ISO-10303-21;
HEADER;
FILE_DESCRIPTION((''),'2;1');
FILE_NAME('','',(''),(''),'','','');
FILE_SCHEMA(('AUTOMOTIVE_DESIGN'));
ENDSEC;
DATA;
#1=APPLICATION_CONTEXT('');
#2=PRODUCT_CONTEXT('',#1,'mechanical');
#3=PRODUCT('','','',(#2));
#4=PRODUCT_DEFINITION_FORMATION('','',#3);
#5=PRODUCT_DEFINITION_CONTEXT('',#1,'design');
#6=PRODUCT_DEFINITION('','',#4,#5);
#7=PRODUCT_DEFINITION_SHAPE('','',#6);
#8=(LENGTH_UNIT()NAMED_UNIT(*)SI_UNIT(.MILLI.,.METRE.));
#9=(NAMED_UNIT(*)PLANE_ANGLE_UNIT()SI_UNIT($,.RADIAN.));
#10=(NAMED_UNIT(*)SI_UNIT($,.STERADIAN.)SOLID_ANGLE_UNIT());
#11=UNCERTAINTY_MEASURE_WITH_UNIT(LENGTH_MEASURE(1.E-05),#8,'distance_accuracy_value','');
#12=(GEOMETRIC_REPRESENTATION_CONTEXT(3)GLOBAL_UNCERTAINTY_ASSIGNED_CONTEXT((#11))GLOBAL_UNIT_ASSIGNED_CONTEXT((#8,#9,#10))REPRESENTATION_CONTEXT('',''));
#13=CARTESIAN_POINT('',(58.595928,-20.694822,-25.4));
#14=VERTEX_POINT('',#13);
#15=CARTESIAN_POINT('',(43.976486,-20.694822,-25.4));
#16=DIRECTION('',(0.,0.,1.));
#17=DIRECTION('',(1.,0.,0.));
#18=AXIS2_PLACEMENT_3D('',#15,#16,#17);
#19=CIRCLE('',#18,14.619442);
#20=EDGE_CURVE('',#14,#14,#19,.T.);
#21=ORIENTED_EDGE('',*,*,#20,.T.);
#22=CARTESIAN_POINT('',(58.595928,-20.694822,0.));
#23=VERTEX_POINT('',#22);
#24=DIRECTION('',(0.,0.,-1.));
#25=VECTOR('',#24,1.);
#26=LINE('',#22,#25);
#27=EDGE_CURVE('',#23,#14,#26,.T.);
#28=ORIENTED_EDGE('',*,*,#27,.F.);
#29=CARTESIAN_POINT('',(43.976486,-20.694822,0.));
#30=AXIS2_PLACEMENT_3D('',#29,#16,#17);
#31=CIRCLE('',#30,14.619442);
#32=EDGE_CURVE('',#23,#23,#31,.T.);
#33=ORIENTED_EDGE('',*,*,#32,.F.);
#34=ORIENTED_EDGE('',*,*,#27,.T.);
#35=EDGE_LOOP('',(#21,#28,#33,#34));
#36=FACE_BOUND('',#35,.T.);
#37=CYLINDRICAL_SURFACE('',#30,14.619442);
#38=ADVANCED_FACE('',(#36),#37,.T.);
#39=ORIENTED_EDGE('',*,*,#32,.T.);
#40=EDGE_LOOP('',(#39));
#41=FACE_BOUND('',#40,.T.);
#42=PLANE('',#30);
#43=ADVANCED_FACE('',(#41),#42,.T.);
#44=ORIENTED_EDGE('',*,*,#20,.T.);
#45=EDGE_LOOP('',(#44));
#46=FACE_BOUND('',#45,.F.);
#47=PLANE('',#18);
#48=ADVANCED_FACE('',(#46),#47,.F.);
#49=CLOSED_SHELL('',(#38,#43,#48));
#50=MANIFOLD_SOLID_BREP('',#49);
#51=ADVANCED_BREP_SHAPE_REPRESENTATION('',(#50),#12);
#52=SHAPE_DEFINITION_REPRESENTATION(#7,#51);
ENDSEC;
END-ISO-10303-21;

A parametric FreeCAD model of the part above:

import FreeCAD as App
import Part
import Sketcher
Q = App.Units.Quantity

doc = App.newDocument("Part")
body = doc.addObject("PartDesign::Body", "Body")

sketch1 = doc.addObject("Sketcher::SketchObject", "Sketch")
body.addObject(sketch1)
sketch1.AttachmentSupport = (doc.XY_Plane, [""])
sketch1.MapMode = "FlatFace"
sketch1.addGeometry(Part.Circle(App.Vector(44, -21, 0), App.Vector(0, 0, 1), 15), False)
sketch1.addConstraint([
    Sketcher.Constraint("Diameter", 0, 29.238884),
    Sketcher.Constraint("DistanceY", 0, 3, -1, 1, 20.694822),
    Sketcher.Constraint("DistanceX", -1, 1, 0, 3, 43.976486),
])
pad1 = doc.addObject("PartDesign::Pad", "Pad")
body.addObject(pad1)
pad1.Profile = sketch1
pad1.Length = Q("1 in")
pad1.Reversed = True

doc.recompute()
